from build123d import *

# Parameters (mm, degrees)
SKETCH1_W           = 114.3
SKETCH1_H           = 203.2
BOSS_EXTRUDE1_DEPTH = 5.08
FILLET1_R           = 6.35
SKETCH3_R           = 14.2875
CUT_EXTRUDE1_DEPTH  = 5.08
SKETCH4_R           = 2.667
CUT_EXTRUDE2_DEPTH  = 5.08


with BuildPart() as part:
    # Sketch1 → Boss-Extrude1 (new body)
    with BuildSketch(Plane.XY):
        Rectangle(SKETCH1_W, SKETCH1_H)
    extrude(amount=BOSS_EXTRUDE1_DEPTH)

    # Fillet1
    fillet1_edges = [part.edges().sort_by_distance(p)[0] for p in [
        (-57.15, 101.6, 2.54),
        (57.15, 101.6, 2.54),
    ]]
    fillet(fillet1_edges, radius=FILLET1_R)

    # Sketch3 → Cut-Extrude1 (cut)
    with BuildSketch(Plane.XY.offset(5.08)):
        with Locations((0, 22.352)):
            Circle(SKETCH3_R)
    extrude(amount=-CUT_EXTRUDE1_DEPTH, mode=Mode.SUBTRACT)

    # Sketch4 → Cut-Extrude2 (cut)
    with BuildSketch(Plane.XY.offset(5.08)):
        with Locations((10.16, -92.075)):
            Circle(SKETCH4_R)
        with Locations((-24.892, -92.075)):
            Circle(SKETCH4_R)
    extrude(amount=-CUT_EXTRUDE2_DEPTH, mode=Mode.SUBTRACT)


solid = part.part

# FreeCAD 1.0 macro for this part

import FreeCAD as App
import Part
import Sketcher

V = App.Vector
Q = App.Units.Quantity


def edges_at(feature, points):
    """Names of the edges that pass closest to the given points."""
    edges = feature.Shape.Edges
    near = lambda p: min(range(len(edges)), key=lambda i: edges[i].distToShape(Part.Vertex(*p))[0])
    return sorted({f"Edge{near(p) + 1}" for p in points})


def add_polygon(sketch, points):
    """Adds a closed chain of lines whose ends are joined by coincident constraints."""
    first, n = sketch.GeometryCount, len(points)
    for a, b in zip(points, points[1:] + points[:1]):
        sketch.addGeometry(Part.LineSegment(App.Vector(*a, 0), App.Vector(*b, 0)), False)
    for i in range(n):
        sketch.addConstraint(Sketcher.Constraint("Coincident", first + i, 2, first + (i + 1) % n, 1))

doc = App.newDocument("Part")
body = doc.addObject("PartDesign::Body", "Body")

sketch1 = body.newObject("Sketcher::SketchObject", "Sketch")
sketch1.AttachmentSupport = (doc.getObject("XY_Plane"), [""])
sketch1.MapMode = "FlatFace"
add_polygon(sketch1, [(-57, 102), (-57, -102), (57, -102), (57, 102)])
sketch1.addConstraint([
    Sketcher.Constraint("Vertical", 0),
    Sketcher.Constraint("Horizontal", 1),
    Sketcher.Constraint("Vertical", 2),
    Sketcher.Constraint("Horizontal", 3),
    Sketcher.Constraint("Symmetric", 0, 2, 2, 2, -1, 1),
    Sketcher.Constraint("DistanceY", 0, 2, 0, 1, Q("8 in")),
    Sketcher.Constraint("DistanceX", 1, 1, 1, 2, Q("4.5 in")),
])
pad1 = body.newObject("PartDesign::Pad", "Pad")
pad1.Profile = sketch1
pad1.Length = Q("0.2 in")
doc.recompute()

fillet = body.newObject("PartDesign::Fillet", "Fillet")
fillet.Base = (pad1, edges_at(pad1, [(-57.15, 101.6, 2.54), (57.15, 101.6, 2.54)]))
fillet.Radius = Q("0.25 in")

sketch2 = body.newObject("Sketcher::SketchObject", "Sketch001")
sketch2.AttachmentSupport = (doc.getObject("XY_Plane"), [""])
sketch2.MapMode = "FlatFace"
sketch2.AttachmentOffset = App.Placement(V(0, 0, 0.2 * 25.4), App.Rotation())
sketch2.addGeometry(Part.Circle(V(0, 22, 0), V(0, 0, 1), 14), False)
sketch2.addConstraint([
    Sketcher.Constraint("PointOnObject", 0, 3, -2),
    Sketcher.Constraint("Diameter", 0, Q("1.125 in")),
    Sketcher.Constraint("DistanceY", -1, 1, 0, 3, Q("0.88 in")),
])
pocket1 = body.newObject("PartDesign::Pocket", "Pocket")
pocket1.Profile = sketch2
pocket1.Length = Q("0.2 in")

sketch3 = body.newObject("Sketcher::SketchObject", "Sketch002")
sketch3.AttachmentSupport = (doc.getObject("XY_Plane"), [""])
sketch3.MapMode = "FlatFace"
sketch3.AttachmentOffset = App.Placement(V(0, 0, 0.2 * 25.4), App.Rotation())
sketch3.addGeometry([
    Part.Circle(V(10.2, -92.1, 0), V(0, 0, 1), 2.7),
    Part.Circle(V(-24.9, -92.1, 0), V(0, 0, 1), 2.7),
], False)
sketch3.addConstraint([
    Sketcher.Constraint("Equal", 0, 1),
    Sketcher.Constraint("Horizontal", 0, 3, 1, 3),
    Sketcher.Constraint("Diameter", 0, Q("0.21 in")),
    Sketcher.Constraint("DistanceX", -1, 1, 0, 3, Q("0.4 in")),
    Sketcher.Constraint("DistanceX", 1, 3, -1, 1, Q("0.98 in")),
    Sketcher.Constraint("DistanceY", 0, 3, -1, 1, Q("3.625 in")),
])
pocket2 = body.newObject("PartDesign::Pocket", "Pocket001")
pocket2.Profile = sketch3
pocket2.Length = Q("0.2 in")

doc.recompute()
